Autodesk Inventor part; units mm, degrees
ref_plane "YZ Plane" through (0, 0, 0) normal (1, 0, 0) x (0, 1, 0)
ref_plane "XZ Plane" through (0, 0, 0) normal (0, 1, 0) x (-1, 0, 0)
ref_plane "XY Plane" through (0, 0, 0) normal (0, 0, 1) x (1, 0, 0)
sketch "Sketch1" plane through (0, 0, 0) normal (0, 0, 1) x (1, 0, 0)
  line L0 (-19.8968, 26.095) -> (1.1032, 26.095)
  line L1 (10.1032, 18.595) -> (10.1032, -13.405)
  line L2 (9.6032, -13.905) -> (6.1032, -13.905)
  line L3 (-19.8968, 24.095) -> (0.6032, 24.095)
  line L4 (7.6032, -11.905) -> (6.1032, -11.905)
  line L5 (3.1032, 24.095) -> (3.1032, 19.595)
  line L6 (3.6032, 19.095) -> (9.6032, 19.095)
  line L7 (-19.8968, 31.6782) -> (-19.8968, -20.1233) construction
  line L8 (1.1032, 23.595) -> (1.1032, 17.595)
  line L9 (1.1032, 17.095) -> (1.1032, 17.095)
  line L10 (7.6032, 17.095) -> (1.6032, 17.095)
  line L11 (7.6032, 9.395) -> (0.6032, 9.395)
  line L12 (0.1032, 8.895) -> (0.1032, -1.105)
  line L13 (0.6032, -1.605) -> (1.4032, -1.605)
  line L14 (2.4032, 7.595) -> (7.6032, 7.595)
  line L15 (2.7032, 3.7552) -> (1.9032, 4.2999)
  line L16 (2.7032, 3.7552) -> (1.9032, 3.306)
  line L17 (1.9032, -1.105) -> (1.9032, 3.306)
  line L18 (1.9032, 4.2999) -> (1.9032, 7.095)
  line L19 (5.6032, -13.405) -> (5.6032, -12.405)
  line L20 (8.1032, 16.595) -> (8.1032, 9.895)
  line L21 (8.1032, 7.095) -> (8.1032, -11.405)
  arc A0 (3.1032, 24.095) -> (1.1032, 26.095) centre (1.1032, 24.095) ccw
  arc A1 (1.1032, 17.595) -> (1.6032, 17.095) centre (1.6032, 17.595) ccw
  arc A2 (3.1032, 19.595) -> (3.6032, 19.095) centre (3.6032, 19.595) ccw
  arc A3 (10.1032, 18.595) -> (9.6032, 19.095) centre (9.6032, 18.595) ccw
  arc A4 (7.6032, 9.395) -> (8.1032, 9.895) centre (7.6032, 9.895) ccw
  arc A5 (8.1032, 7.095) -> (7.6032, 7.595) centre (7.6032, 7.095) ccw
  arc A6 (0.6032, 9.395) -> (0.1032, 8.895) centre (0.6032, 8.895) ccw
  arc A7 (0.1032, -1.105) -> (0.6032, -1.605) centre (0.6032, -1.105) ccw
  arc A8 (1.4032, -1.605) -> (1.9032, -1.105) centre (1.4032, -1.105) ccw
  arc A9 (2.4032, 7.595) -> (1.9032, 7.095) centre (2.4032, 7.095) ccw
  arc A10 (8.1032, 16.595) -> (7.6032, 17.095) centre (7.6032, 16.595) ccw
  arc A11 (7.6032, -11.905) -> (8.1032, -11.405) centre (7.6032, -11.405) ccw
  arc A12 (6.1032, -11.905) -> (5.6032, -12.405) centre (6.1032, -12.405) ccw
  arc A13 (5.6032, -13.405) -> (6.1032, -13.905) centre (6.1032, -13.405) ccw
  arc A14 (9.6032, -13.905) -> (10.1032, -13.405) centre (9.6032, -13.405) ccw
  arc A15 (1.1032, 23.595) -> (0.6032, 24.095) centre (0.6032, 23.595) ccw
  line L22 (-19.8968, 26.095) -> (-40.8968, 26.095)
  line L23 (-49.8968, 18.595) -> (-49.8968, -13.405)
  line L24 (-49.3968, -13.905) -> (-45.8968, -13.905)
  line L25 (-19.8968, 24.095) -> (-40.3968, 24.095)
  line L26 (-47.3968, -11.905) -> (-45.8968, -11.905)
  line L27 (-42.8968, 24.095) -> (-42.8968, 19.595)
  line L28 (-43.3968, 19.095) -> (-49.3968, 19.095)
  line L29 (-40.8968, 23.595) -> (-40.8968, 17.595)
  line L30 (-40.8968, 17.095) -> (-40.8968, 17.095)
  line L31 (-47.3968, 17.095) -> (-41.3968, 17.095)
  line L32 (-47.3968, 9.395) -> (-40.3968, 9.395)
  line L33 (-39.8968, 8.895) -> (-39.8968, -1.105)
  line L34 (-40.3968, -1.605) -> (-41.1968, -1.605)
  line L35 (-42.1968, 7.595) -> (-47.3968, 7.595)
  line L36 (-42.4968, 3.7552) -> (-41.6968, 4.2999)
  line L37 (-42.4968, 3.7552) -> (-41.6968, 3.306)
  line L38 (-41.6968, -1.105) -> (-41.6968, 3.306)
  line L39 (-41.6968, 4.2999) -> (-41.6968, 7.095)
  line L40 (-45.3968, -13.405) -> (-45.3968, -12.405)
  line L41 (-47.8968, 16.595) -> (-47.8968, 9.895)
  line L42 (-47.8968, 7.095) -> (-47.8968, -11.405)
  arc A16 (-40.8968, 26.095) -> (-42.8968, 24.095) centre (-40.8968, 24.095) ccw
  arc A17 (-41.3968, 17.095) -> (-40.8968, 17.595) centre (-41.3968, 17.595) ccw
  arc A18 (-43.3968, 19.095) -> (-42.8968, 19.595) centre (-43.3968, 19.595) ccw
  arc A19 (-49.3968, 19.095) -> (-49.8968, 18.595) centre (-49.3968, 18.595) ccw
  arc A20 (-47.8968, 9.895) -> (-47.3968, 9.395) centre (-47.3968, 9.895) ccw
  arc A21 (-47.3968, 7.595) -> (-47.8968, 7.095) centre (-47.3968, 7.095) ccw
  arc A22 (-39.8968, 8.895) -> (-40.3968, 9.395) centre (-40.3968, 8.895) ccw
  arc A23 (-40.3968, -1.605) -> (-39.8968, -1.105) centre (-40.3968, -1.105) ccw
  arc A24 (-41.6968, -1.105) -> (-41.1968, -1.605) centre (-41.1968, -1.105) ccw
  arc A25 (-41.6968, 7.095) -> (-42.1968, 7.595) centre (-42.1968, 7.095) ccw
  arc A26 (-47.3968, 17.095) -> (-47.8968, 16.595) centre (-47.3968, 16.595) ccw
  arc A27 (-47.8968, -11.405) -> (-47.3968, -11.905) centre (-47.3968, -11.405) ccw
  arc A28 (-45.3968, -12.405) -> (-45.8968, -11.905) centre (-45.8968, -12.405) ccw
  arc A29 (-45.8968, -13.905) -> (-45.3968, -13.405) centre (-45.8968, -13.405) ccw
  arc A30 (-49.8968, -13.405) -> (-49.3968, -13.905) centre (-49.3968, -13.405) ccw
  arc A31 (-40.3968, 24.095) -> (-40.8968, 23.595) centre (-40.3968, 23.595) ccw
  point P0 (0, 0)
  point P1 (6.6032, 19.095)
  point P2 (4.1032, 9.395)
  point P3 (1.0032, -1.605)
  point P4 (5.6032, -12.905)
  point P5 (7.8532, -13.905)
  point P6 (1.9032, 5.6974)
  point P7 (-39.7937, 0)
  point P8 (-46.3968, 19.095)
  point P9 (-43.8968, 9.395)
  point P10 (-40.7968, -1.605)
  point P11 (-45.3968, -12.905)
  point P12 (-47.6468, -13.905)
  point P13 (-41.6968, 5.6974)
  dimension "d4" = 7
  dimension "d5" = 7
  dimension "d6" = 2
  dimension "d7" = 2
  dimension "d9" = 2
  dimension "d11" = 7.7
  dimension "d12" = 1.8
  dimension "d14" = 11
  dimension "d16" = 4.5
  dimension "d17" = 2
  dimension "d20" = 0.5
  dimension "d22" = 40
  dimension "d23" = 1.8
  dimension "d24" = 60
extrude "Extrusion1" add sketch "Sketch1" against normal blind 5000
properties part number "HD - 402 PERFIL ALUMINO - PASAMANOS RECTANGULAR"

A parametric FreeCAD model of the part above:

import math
import FreeCAD as App
import Part
import Sketcher
from FreeCAD import Vector
Q = App.Units.Quantity

doc = App.newDocument("Part")
body = doc.addObject("PartDesign::Body", "Body")

sketch1 = doc.addObject("Sketcher::SketchObject", "Sketch")
body.addObject(sketch1)
sketch1.AttachmentSupport = (doc.XY_Plane, [""])
sketch1.MapMode = "FlatFace"
sketch1.addGeometry(Part.LineSegment(Vector(1.1, 26.09, 0), Vector(-40.9, 26.09, 0)), False)
sketch1.addGeometry(Part.ArcOfCircle(Part.Circle(Vector(-40.9, 24.09, 0), Vector(0, 0, 1), 2), math.radians(90), math.radians(180)), False)
sketch1.addGeometry(Part.LineSegment(Vector(-42.9, 24.09, 0), Vector(-42.9, 19.59, 0)), False)
sketch1.addGeometry(Part.ArcOfCircle(Part.Circle(Vector(-43.4, 19.59, 0), Vector(0, 0, 1), 0.5), math.radians(-90), math.radians(0)), False)
sketch1.addGeometry(Part.LineSegment(Vector(-43.4, 19.09, 0), Vector(-49.4, 19.09, 0)), False)
sketch1.addGeometry(Part.ArcOfCircle(Part.Circle(Vector(-49.4, 18.59, 0), Vector(0, 0, 1), 0.5), math.radians(90), math.radians(180)), False)
sketch1.addGeometry(Part.LineSegment(Vector(-49.9, 18.59, 0), Vector(-49.9, -13.4, 0)), False)
sketch1.addGeometry(Part.ArcOfCircle(Part.Circle(Vector(-49.4, -13.4, 0), Vector(0, 0, 1), 0.5), math.radians(180), math.radians(270)), False)
sketch1.addGeometry(Part.LineSegment(Vector(-49.4, -13.9, 0), Vector(-45.9, -13.9, 0)), False)
sketch1.addGeometry(Part.ArcOfCircle(Part.Circle(Vector(-45.9, -13.4, 0), Vector(0, 0, 1), 0.5), math.radians(-90), math.radians(0)), False)
sketch1.addGeometry(Part.LineSegment(Vector(-45.4, -13.4, 0), Vector(-45.4, -12.4, 0)), False)
sketch1.addGeometry(Part.ArcOfCircle(Part.Circle(Vector(-45.9, -12.4, 0), Vector(0, 0, 1), 0.5), math.radians(0), math.radians(90)), False)
sketch1.addGeometry(Part.LineSegment(Vector(-45.9, -11.9, 0), Vector(-47.4, -11.9, 0)), False)
sketch1.addGeometry(Part.ArcOfCircle(Part.Circle(Vector(-47.4, -11.4, 0), Vector(0, 0, 1), 0.5), math.radians(180), math.radians(270)), False)
sketch1.addGeometry(Part.LineSegment(Vector(-47.9, -11.4, 0), Vector(-47.9, 7.09, 0)), False)
sketch1.addGeometry(Part.ArcOfCircle(Part.Circle(Vector(-47.4, 7.09, 0), Vector(0, 0, 1), 0.5), math.radians(90), math.radians(180)), False)
sketch1.addGeometry(Part.LineSegment(Vector(-47.4, 7.59, 0), Vector(-42.2, 7.59, 0)), False)
sketch1.addGeometry(Part.ArcOfCircle(Part.Circle(Vector(-42.2, 7.09, 0), Vector(0, 0, 1), 0.5), math.radians(0), math.radians(90)), False)
sketch1.addGeometry(Part.LineSegment(Vector(-41.7, 7.09, 0), Vector(-41.7, 4.3, 0)), False)
sketch1.addGeometry(Part.LineSegment(Vector(-41.7, 4.3, 0), Vector(-42.5, 3.76, 0)), False)
sketch1.addGeometry(Part.LineSegment(Vector(-42.5, 3.76, 0), Vector(-41.7, 3.31, 0)), False)
sketch1.addGeometry(Part.LineSegment(Vector(-41.7, 3.31, 0), Vector(-41.7, -1.1, 0)), False)
sketch1.addGeometry(Part.ArcOfCircle(Part.Circle(Vector(-41.2, -1.1, 0), Vector(0, 0, 1), 0.5), math.radians(180), math.radians(270)), False)
sketch1.addGeometry(Part.LineSegment(Vector(-41.2, -1.6, 0), Vector(-40.4, -1.6, 0)), False)
sketch1.addGeometry(Part.ArcOfCircle(Part.Circle(Vector(-40.4, -1.1, 0), Vector(0, 0, 1), 0.5), math.radians(-90), math.radians(0)), False)
sketch1.addGeometry(Part.LineSegment(Vector(-39.9, -1.1, 0), Vector(-39.9, 8.89, 0)), False)
sketch1.addGeometry(Part.ArcOfCircle(Part.Circle(Vector(-40.4, 8.89, 0), Vector(0, 0, 1), 0.5), math.radians(0), math.radians(90)), False)
sketch1.addGeometry(Part.LineSegment(Vector(-40.4, 9.39, 0), Vector(-47.4, 9.39, 0)), False)
sketch1.addGeometry(Part.ArcOfCircle(Part.Circle(Vector(-47.4, 9.89, 0), Vector(0, 0, 1), 0.5), math.radians(180), math.radians(270)), False)
sketch1.addGeometry(Part.LineSegment(Vector(-47.9, 9.89, 0), Vector(-47.9, 16.59, 0)), False)
sketch1.addGeometry(Part.ArcOfCircle(Part.Circle(Vector(-47.4, 16.59, 0), Vector(0, 0, 1), 0.5), math.radians(90), math.radians(180)), False)
sketch1.addGeometry(Part.LineSegment(Vector(-47.4, 17.09, 0), Vector(-41.4, 17.09, 0)), False)
sketch1.addGeometry(Part.ArcOfCircle(Part.Circle(Vector(-41.4, 17.59, 0), Vector(0, 0, 1), 0.5), math.radians(-90), math.radians(0)), False)
sketch1.addGeometry(Part.LineSegment(Vector(-40.9, 17.59, 0), Vector(-40.9, 23.59, 0)), False)
sketch1.addGeometry(Part.ArcOfCircle(Part.Circle(Vector(-40.4, 23.59, 0), Vector(0, 0, 1), 0.5), math.radians(90), math.radians(180)), False)
sketch1.addGeometry(Part.LineSegment(Vector(-40.4, 24.09, 0), Vector(0.6, 24.09, 0)), False)
sketch1.addGeometry(Part.ArcOfCircle(Part.Circle(Vector(0.6, 23.59, 0), Vector(0, 0, 1), 0.5), math.radians(0), math.radians(90)), False)
sketch1.addGeometry(Part.LineSegment(Vector(1.1, 23.59, 0), Vector(1.1, 17.59, 0)), False)
sketch1.addGeometry(Part.ArcOfCircle(Part.Circle(Vector(1.6, 17.59, 0), Vector(0, 0, 1), 0.5), math.radians(180), math.radians(270)), False)
sketch1.addGeometry(Part.LineSegment(Vector(1.6, 17.09, 0), Vector(7.6, 17.09, 0)), False)
sketch1.addGeometry(Part.ArcOfCircle(Part.Circle(Vector(7.6, 16.59, 0), Vector(0, 0, 1), 0.5), math.radians(0), math.radians(90)), False)
sketch1.addGeometry(Part.LineSegment(Vector(8.1, 16.59, 0), Vector(8.1, 9.89, 0)), False)
sketch1.addGeometry(Part.ArcOfCircle(Part.Circle(Vector(7.6, 9.89, 0), Vector(0, 0, 1), 0.5), math.radians(-90), math.radians(0)), False)
sketch1.addGeometry(Part.LineSegment(Vector(7.6, 9.39, 0), Vector(0.6, 9.39, 0)), False)
sketch1.addGeometry(Part.ArcOfCircle(Part.Circle(Vector(0.6, 8.89, 0), Vector(0, 0, 1), 0.5), math.radians(90), math.radians(180)), False)
sketch1.addGeometry(Part.LineSegment(Vector(0.1, 8.89, 0), Vector(0.1, -1.1, 0)), False)
sketch1.addGeometry(Part.ArcOfCircle(Part.Circle(Vector(0.6, -1.1, 0), Vector(0, 0, 1), 0.5), math.radians(180), math.radians(270)), False)
sketch1.addGeometry(Part.LineSegment(Vector(0.6, -1.6, 0), Vector(1.4, -1.6, 0)), False)
sketch1.addGeometry(Part.ArcOfCircle(Part.Circle(Vector(1.4, -1.1, 0), Vector(0, 0, 1), 0.5), math.radians(-90), math.radians(0)), False)
sketch1.addGeometry(Part.LineSegment(Vector(1.9, -1.1, 0), Vector(1.9, 3.31, 0)), False)
sketch1.addGeometry(Part.LineSegment(Vector(1.9, 3.31, 0), Vector(2.7, 3.76, 0)), False)
sketch1.addGeometry(Part.LineSegment(Vector(2.7, 3.76, 0), Vector(1.9, 4.3, 0)), False)
sketch1.addGeometry(Part.LineSegment(Vector(1.9, 4.3, 0), Vector(1.9, 7.09, 0)), False)
sketch1.addGeometry(Part.ArcOfCircle(Part.Circle(Vector(2.4, 7.09, 0), Vector(0, 0, 1), 0.5), math.radians(90), math.radians(180)), False)
sketch1.addGeometry(Part.LineSegment(Vector(2.4, 7.59, 0), Vector(7.6, 7.59, 0)), False)
sketch1.addGeometry(Part.ArcOfCircle(Part.Circle(Vector(7.6, 7.09, 0), Vector(0, 0, 1), 0.5), math.radians(0), math.radians(90)), False)
sketch1.addGeometry(Part.LineSegment(Vector(8.1, 7.09, 0), Vector(8.1, -11.4, 0)), False)
sketch1.addGeometry(Part.ArcOfCircle(Part.Circle(Vector(7.6, -11.4, 0), Vector(0, 0, 1), 0.5), math.radians(-90), math.radians(0)), False)
sketch1.addGeometry(Part.LineSegment(Vector(7.6, -11.9, 0), Vector(6.1, -11.9, 0)), False)
sketch1.addGeometry(Part.ArcOfCircle(Part.Circle(Vector(6.1, -12.4, 0), Vector(0, 0, 1), 0.5), math.radians(90), math.radians(180)), False)
sketch1.addGeometry(Part.LineSegment(Vector(5.6, -12.4, 0), Vector(5.6, -13.4, 0)), False)
sketch1.addGeometry(Part.ArcOfCircle(Part.Circle(Vector(6.1, -13.4, 0), Vector(0, 0, 1), 0.5), math.radians(180), math.radians(270)), False)
sketch1.addGeometry(Part.LineSegment(Vector(6.1, -13.9, 0), Vector(9.6, -13.9, 0)), False)
sketch1.addGeometry(Part.ArcOfCircle(Part.Circle(Vector(9.6, -13.4, 0), Vector(0, 0, 1), 0.5), math.radians(-90), math.radians(0)), False)
sketch1.addGeometry(Part.LineSegment(Vector(10.1, -13.4, 0), Vector(10.1, 18.59, 0)), False)
sketch1.addGeometry(Part.ArcOfCircle(Part.Circle(Vector(9.6, 18.59, 0), Vector(0, 0, 1), 0.5), math.radians(0), math.radians(90)), False)
sketch1.addGeometry(Part.LineSegment(Vector(9.6, 19.09, 0), Vector(3.6, 19.09, 0)), False)
sketch1.addGeometry(Part.ArcOfCircle(Part.Circle(Vector(3.6, 19.59, 0), Vector(0, 0, 1), 0.5), math.radians(180), math.radians(270)), False)
sketch1.addGeometry(Part.LineSegment(Vector(3.1, 19.59, 0), Vector(3.1, 24.09, 0)), False)
sketch1.addGeometry(Part.ArcOfCircle(Part.Circle(Vector(1.1, 24.09, 0), Vector(0, 0, 1), 2), math.radians(0), math.radians(90)), False)
sketch1.addConstraint(Sketcher.Constraint("Tangent", 0, 2, 1, 1))
sketch1.addConstraint(Sketcher.Constraint("Tangent", 1, 2, 2, 1))
sketch1.addConstraint(Sketcher.Constraint("Tangent", 2, 2, 3, 2))
sketch1.addConstraint(Sketcher.Constraint("Tangent", 3, 1, 4, 1))
sketch1.addConstraint(Sketcher.Constraint("Tangent", 4, 2, 5, 1))
sketch1.addConstraint(Sketcher.Constraint("Tangent", 5, 2, 6, 1))
sketch1.addConstraint(Sketcher.Constraint("Tangent", 6, 2, 7, 1))
sketch1.addConstraint(Sketcher.Constraint("Tangent", 7, 2, 8, 1))
sketch1.addConstraint(Sketcher.Constraint("Tangent", 8, 2, 9, 1))
sketch1.addConstraint(Sketcher.Constraint("Tangent", 9, 2, 10, 1))
sketch1.addConstraint(Sketcher.Constraint("Tangent", 10, 2, 11, 1))
sketch1.addConstraint(Sketcher.Constraint("Tangent", 11, 2, 12, 1))
sketch1.addConstraint(Sketcher.Constraint("Tangent", 12, 2, 13, 2))
sketch1.addConstraint(Sketcher.Constraint("Tangent", 13, 1, 14, 1))
sketch1.addConstraint(Sketcher.Constraint("Tangent", 14, 2, 15, 2))
sketch1.addConstraint(Sketcher.Constraint("Tangent", 15, 1, 16, 1))
sketch1.addConstraint(Sketcher.Constraint("Tangent", 16, 2, 17, 2))
sketch1.addConstraint(Sketcher.Constraint("Tangent", 17, 1, 18, 1))
sketch1.addConstraint(Sketcher.Constraint("Coincident", 18, 2, 19, 1))
sketch1.addConstraint(Sketcher.Constraint("Coincident", 19, 2, 20, 1))
sketch1.addConstraint(Sketcher.Constraint("Coincident", 20, 2, 21, 1))
sketch1.addConstraint(Sketcher.Constraint("Tangent", 21, 2, 22, 1))
sketch1.addConstraint(Sketcher.Constraint("Tangent", 22, 2, 23, 1))
sketch1.addConstraint(Sketcher.Constraint("Tangent", 23, 2, 24, 1))
sketch1.addConstraint(Sketcher.Constraint("Tangent", 24, 2, 25, 1))
sketch1.addConstraint(Sketcher.Constraint("Tangent", 25, 2, 26, 1))
sketch1.addConstraint(Sketcher.Constraint("Tangent", 26, 2, 27, 1))
sketch1.addConstraint(Sketcher.Constraint("Tangent", 27, 2, 28, 2))
sketch1.addConstraint(Sketcher.Constraint("Tangent", 28, 1, 29, 1))
sketch1.addConstraint(Sketcher.Constraint("Tangent", 29, 2, 30, 2))
sketch1.addConstraint(Sketcher.Constraint("Tangent", 30, 1, 31, 1))
sketch1.addConstraint(Sketcher.Constraint("Tangent", 31, 2, 32, 1))
sketch1.addConstraint(Sketcher.Constraint("Tangent", 32, 2, 33, 1))
sketch1.addConstraint(Sketcher.Constraint("Tangent", 33, 2, 34, 2))
sketch1.addConstraint(Sketcher.Constraint("Tangent", 34, 1, 35, 1))
sketch1.addConstraint(Sketcher.Constraint("Tangent", 35, 2, 36, 2))
sketch1.addConstraint(Sketcher.Constraint("Tangent", 36, 1, 37, 1))
sketch1.addConstraint(Sketcher.Constraint("Tangent", 37, 2, 38, 1))
sketch1.addConstraint(Sketcher.Constraint("Tangent", 38, 2, 39, 1))
sketch1.addConstraint(Sketcher.Constraint("Tangent", 39, 2, 40, 2))
sketch1.addConstraint(Sketcher.Constraint("Tangent", 40, 1, 41, 1))
sketch1.addConstraint(Sketcher.Constraint("Tangent", 41, 2, 42, 2))
sketch1.addConstraint(Sketcher.Constraint("Tangent", 42, 1, 43, 1))
sketch1.addConstraint(Sketcher.Constraint("Tangent", 43, 2, 44, 1))
sketch1.addConstraint(Sketcher.Constraint("Tangent", 44, 2, 45, 1))
sketch1.addConstraint(Sketcher.Constraint("Tangent", 45, 2, 46, 1))
sketch1.addConstraint(Sketcher.Constraint("Tangent", 46, 2, 47, 1))
sketch1.addConstraint(Sketcher.Constraint("Tangent", 47, 2, 48, 1))
sketch1.addConstraint(Sketcher.Constraint("Tangent", 48, 2, 49, 1))
sketch1.addConstraint(Sketcher.Constraint("Coincident", 49, 2, 50, 1))
sketch1.addConstraint(Sketcher.Constraint("Coincident", 50, 2, 51, 1))
sketch1.addConstraint(Sketcher.Constraint("Coincident", 51, 2, 52, 1))
sketch1.addConstraint(Sketcher.Constraint("Tangent", 52, 2, 53, 2))
sketch1.addConstraint(Sketcher.Constraint("Tangent", 53, 1, 54, 1))
sketch1.addConstraint(Sketcher.Constraint("Tangent", 54, 2, 55, 2))
sketch1.addConstraint(Sketcher.Constraint("Tangent", 55, 1, 56, 1))
sketch1.addConstraint(Sketcher.Constraint("Tangent", 56, 2, 57, 2))
sketch1.addConstraint(Sketcher.Constraint("Tangent", 57, 1, 58, 1))
sketch1.addConstraint(Sketcher.Constraint("Tangent", 58, 2, 59, 1))
sketch1.addConstraint(Sketcher.Constraint("Tangent", 59, 2, 60, 1))
sketch1.addConstraint(Sketcher.Constraint("Tangent", 60, 2, 61, 1))
sketch1.addConstraint(Sketcher.Constraint("Tangent", 61, 2, 62, 1))
sketch1.addConstraint(Sketcher.Constraint("Tangent", 62, 2, 63, 1))
sketch1.addConstraint(Sketcher.Constraint("Tangent", 63, 2, 64, 1))
sketch1.addConstraint(Sketcher.Constraint("Tangent", 64, 2, 65, 1))
sketch1.addConstraint(Sketcher.Constraint("Tangent", 65, 2, 66, 1))
sketch1.addConstraint(Sketcher.Constraint("Tangent", 66, 2, 67, 2))
sketch1.addConstraint(Sketcher.Constraint("Tangent", 67, 1, 68, 1))
sketch1.addConstraint(Sketcher.Constraint("Tangent", 68, 2, 69, 1))
sketch1.addConstraint(Sketcher.Constraint("Tangent", 69, 2, 0, 1))
sketch1.addConstraint(Sketcher.Constraint("Horizontal", 0))
sketch1.addConstraint(Sketcher.Constraint("Vertical", 2))
sketch1.addConstraint(Sketcher.Constraint("Horizontal", 4))
sketch1.addConstraint(Sketcher.Constraint("Vertical", 6))
sketch1.addConstraint(Sketcher.Constraint("Horizontal", 8))
sketch1.addConstraint(Sketcher.Constraint("Vertical", 10))
sketch1.addConstraint(Sketcher.Constraint("Horizontal", 12))
sketch1.addConstraint(Sketcher.Constraint("Vertical", 14))
sketch1.addConstraint(Sketcher.Constraint("Horizontal", 16))
sketch1.addConstraint(Sketcher.Constraint("Vertical", 18))
sketch1.addConstraint(Sketcher.Constraint("Vertical", 21))
sketch1.addConstraint(Sketcher.Constraint("Horizontal", 23))
sketch1.addConstraint(Sketcher.Constraint("Vertical", 25))
sketch1.addConstraint(Sketcher.Constraint("Horizontal", 27))
sketch1.addConstraint(Sketcher.Constraint("Vertical", 29))
sketch1.addConstraint(Sketcher.Constraint("Horizontal", 31))
sketch1.addConstraint(Sketcher.Constraint("Vertical", 33))
sketch1.addConstraint(Sketcher.Constraint("Horizontal", 35))
sketch1.addConstraint(Sketcher.Constraint("Vertical", 37))
sketch1.addConstraint(Sketcher.Constraint("Horizontal", 39))
sketch1.addConstraint(Sketcher.Constraint("Vertical", 41))
sketch1.addConstraint(Sketcher.Constraint("Horizontal", 43))
sketch1.addConstraint(Sketcher.Constraint("Vertical", 45))
sketch1.addConstraint(Sketcher.Constraint("Horizontal", 47))
sketch1.addConstraint(Sketcher.Constraint("Vertical", 49))
sketch1.addConstraint(Sketcher.Constraint("Vertical", 52))
sketch1.addConstraint(Sketcher.Constraint("Horizontal", 54))
sketch1.addConstraint(Sketcher.Constraint("Vertical", 56))
sketch1.addConstraint(Sketcher.Constraint("Horizontal", 58))
sketch1.addConstraint(Sketcher.Constraint("Vertical", 60))
sketch1.addConstraint(Sketcher.Constraint("Horizontal", 62))
sketch1.addConstraint(Sketcher.Constraint("Vertical", 64))
sketch1.addConstraint(Sketcher.Constraint("Horizontal", 66))
sketch1.addConstraint(Sketcher.Constraint("Vertical", 68))
sketch1.addConstraint(Sketcher.Constraint("Equal", 3, 5))
sketch1.addConstraint(Sketcher.Constraint("Equal", 5, 7))
sketch1.addConstraint(Sketcher.Constraint("Equal", 7, 9))
sketch1.addConstraint(Sketcher.Constraint("Equal", 9, 11))
sketch1.addConstraint(Sketcher.Constraint("Equal", 11, 13))
sketch1.addConstraint(Sketcher.Constraint("Equal", 13, 15))
sketch1.addConstraint(Sketcher.Constraint("Equal", 15, 17))
sketch1.addConstraint(Sketcher.Constraint("Equal", 17, 22))
sketch1.addConstraint(Sketcher.Constraint("Equal", 22, 24))
sketch1.addConstraint(Sketcher.Constraint("Equal", 24, 26))
sketch1.addConstraint(Sketcher.Constraint("Equal", 26, 28))
sketch1.addConstraint(Sketcher.Constraint("Equal", 28, 30))
sketch1.addConstraint(Sketcher.Constraint("Equal", 30, 32))
sketch1.addConstraint(Sketcher.Constraint("Equal", 32, 34))
sketch1.addConstraint(Sketcher.Constraint("Equal", 34, 36))
sketch1.addConstraint(Sketcher.Constraint("Equal", 36, 38))
sketch1.addConstraint(Sketcher.Constraint("Equal", 38, 40))
sketch1.addConstraint(Sketcher.Constraint("Equal", 40, 42))
sketch1.addConstraint(Sketcher.Constraint("Equal", 42, 44))
sketch1.addConstraint(Sketcher.Constraint("Equal", 44, 46))
sketch1.addConstraint(Sketcher.Constraint("Equal", 46, 48))
sketch1.addConstraint(Sketcher.Constraint("Equal", 48, 53))
sketch1.addConstraint(Sketcher.Constraint("Equal", 53, 55))
sketch1.addConstraint(Sketcher.Constraint("Equal", 55, 57))
sketch1.addConstraint(Sketcher.Constraint("Equal", 57, 59))
sketch1.addConstraint(Sketcher.Constraint("Equal", 59, 61))
sketch1.addConstraint(Sketcher.Constraint("Equal", 61, 63))
sketch1.addConstraint(Sketcher.Constraint("Equal", 63, 65))
sketch1.addConstraint(Sketcher.Constraint("Equal", 65, 67))
sketch1.addConstraint(Sketcher.Constraint("Equal", 1, 69))
sketch1.addConstraint(Sketcher.Constraint("Horizontal", 32, 3, 38, 3))
sketch1.addConstraint(Sketcher.Constraint("Horizontal", 28, 3, 42, 3))
sketch1.addConstraint(Sketcher.Constraint("Horizontal", 24, 3, 46, 3))
sketch1.addConstraint(Sketcher.Constraint("Horizontal", 17, 3, 53, 3))
sketch1.addConstraint(Sketcher.Constraint("Horizontal", 13, 3, 57, 3))
sketch1.addConstraint(Sketcher.Constraint("Horizontal", 9, 3, 61, 3))
sketch1.addConstraint(Sketcher.Constraint("Horizontal", 5, 3, 65, 3))
sketch1.addConstraint(Sketcher.Constraint("Horizontal", 1, 2, 34, 1))
sketch1.addConstraint(Sketcher.Constraint("Horizontal", 20, 2, 49, 2))
sketch1.addConstraint(Sketcher.Constraint("Horizontal", 19, 2, 50, 2))
sketch1.addConstraint(Sketcher.Constraint("Horizontal", 18, 2, 51, 2))
sketch1.addConstraint(Sketcher.Constraint("Vertical", 15, 3, 28, 3))
sketch1.addConstraint(Sketcher.Constraint("Vertical", 26, 3, 34, 3))
sketch1.addConstraint(Sketcher.Constraint("Vertical", 36, 3, 44, 3))
sketch1.addConstraint(Sketcher.Constraint("Vertical", 42, 3, 55, 3))
sketch1.addConstraint(Sketcher.Constraint("Vertical", 18, 2, 20, 2))
sketch1.addConstraint(Sketcher.Constraint("Vertical", 0, 2, 32, 2))
sketch1.addConstraint(Sketcher.Constraint("Vertical", 69, 3, 36, 1))
sketch1.addConstraint(Sketcher.Constraint("Vertical", 49, 2, 51, 2))
sketch1.addConstraint(Sketcher.Constraint("Equal", 4, 31))
sketch1.addConstraint(Sketcher.Constraint("Equal", 31, 39))
sketch1.addConstraint(Sketcher.Constraint("Equal", 23, 47))
sketch1.addConstraint(Sketcher.Constraint("Equal", 12, 58))
sketch1.addConstraint(Sketcher.Constraint("Equal", 8, 62))
sketch1.addConstraint(Sketcher.Constraint("Equal", 66, 33))
sketch1.addConstraint(Sketcher.Constraint("Equal", 20, 50))
sketch1.addConstraint(Sketcher.Constraint("Radius", 1, 2.0))
sketch1.addConstraint(Sketcher.Constraint("Radius", 3, 0.5))
sketch1.addConstraint(Sketcher.Constraint("DistanceX", 27, 2, 27, 1, 7.0))
sketch1.addConstraint(Sketcher.Constraint("DistanceY", 2, 2, 2, 1, 4.5))
sketch1.addConstraint(Sketcher.Constraint("DistanceX", 0, 2, 0, 1, 42.0))
sketch1.addConstraint(Sketcher.Constraint("DistanceY", 6, 2, 6, 1, 32.0))
sketch1.addConstraint(Sketcher.Constraint("DistanceY", 10, 1, 10, 2, 1.0))
sketch1.addConstraint(Sketcher.Constraint("DistanceY", 25, 1, 25, 2, 10.0))
sketch1.addConstraint(Sketcher.Constraint("DistanceX", 8, 1, 8, 2, 3.5))
sketch1.addConstraint(Sketcher.Constraint("DistanceX", 16, 1, 16, 2, 5.2))
sketch1.addConstraint(Sketcher.Constraint("DistanceY", 14, 1, 14, 2, 18.5))
sketch1.addConstraint(Sketcher.Constraint("DistanceY", 29, 1, 29, 2, 6.7))
sketch1.addConstraint(Sketcher.Constraint("DistanceY", -1, 1, 18, 2, 4.3))
sketch1.addConstraint(Sketcher.Constraint("Angle", 19, Q("-145.75 deg")))
sketch1.addConstraint(Sketcher.Constraint("DistanceY", 18, 2, 18, 1, 2.795))
sketch1.addConstraint(Sketcher.Constraint("DistanceY", 21, 2, 21, 1, 4.411))
sketch1.addConstraint(Sketcher.Constraint("Distance", 19, 0.9678))
sketch1.addConstraint(Sketcher.Constraint("DistanceX", 1, 3, -1, 1, 40.8968))
pad1 = doc.addObject("PartDesign::Pad", "Pad")
body.addObject(pad1)
pad1.Profile = sketch1
pad1.Length = 5000
pad1.Reversed = True

doc.recompute()
